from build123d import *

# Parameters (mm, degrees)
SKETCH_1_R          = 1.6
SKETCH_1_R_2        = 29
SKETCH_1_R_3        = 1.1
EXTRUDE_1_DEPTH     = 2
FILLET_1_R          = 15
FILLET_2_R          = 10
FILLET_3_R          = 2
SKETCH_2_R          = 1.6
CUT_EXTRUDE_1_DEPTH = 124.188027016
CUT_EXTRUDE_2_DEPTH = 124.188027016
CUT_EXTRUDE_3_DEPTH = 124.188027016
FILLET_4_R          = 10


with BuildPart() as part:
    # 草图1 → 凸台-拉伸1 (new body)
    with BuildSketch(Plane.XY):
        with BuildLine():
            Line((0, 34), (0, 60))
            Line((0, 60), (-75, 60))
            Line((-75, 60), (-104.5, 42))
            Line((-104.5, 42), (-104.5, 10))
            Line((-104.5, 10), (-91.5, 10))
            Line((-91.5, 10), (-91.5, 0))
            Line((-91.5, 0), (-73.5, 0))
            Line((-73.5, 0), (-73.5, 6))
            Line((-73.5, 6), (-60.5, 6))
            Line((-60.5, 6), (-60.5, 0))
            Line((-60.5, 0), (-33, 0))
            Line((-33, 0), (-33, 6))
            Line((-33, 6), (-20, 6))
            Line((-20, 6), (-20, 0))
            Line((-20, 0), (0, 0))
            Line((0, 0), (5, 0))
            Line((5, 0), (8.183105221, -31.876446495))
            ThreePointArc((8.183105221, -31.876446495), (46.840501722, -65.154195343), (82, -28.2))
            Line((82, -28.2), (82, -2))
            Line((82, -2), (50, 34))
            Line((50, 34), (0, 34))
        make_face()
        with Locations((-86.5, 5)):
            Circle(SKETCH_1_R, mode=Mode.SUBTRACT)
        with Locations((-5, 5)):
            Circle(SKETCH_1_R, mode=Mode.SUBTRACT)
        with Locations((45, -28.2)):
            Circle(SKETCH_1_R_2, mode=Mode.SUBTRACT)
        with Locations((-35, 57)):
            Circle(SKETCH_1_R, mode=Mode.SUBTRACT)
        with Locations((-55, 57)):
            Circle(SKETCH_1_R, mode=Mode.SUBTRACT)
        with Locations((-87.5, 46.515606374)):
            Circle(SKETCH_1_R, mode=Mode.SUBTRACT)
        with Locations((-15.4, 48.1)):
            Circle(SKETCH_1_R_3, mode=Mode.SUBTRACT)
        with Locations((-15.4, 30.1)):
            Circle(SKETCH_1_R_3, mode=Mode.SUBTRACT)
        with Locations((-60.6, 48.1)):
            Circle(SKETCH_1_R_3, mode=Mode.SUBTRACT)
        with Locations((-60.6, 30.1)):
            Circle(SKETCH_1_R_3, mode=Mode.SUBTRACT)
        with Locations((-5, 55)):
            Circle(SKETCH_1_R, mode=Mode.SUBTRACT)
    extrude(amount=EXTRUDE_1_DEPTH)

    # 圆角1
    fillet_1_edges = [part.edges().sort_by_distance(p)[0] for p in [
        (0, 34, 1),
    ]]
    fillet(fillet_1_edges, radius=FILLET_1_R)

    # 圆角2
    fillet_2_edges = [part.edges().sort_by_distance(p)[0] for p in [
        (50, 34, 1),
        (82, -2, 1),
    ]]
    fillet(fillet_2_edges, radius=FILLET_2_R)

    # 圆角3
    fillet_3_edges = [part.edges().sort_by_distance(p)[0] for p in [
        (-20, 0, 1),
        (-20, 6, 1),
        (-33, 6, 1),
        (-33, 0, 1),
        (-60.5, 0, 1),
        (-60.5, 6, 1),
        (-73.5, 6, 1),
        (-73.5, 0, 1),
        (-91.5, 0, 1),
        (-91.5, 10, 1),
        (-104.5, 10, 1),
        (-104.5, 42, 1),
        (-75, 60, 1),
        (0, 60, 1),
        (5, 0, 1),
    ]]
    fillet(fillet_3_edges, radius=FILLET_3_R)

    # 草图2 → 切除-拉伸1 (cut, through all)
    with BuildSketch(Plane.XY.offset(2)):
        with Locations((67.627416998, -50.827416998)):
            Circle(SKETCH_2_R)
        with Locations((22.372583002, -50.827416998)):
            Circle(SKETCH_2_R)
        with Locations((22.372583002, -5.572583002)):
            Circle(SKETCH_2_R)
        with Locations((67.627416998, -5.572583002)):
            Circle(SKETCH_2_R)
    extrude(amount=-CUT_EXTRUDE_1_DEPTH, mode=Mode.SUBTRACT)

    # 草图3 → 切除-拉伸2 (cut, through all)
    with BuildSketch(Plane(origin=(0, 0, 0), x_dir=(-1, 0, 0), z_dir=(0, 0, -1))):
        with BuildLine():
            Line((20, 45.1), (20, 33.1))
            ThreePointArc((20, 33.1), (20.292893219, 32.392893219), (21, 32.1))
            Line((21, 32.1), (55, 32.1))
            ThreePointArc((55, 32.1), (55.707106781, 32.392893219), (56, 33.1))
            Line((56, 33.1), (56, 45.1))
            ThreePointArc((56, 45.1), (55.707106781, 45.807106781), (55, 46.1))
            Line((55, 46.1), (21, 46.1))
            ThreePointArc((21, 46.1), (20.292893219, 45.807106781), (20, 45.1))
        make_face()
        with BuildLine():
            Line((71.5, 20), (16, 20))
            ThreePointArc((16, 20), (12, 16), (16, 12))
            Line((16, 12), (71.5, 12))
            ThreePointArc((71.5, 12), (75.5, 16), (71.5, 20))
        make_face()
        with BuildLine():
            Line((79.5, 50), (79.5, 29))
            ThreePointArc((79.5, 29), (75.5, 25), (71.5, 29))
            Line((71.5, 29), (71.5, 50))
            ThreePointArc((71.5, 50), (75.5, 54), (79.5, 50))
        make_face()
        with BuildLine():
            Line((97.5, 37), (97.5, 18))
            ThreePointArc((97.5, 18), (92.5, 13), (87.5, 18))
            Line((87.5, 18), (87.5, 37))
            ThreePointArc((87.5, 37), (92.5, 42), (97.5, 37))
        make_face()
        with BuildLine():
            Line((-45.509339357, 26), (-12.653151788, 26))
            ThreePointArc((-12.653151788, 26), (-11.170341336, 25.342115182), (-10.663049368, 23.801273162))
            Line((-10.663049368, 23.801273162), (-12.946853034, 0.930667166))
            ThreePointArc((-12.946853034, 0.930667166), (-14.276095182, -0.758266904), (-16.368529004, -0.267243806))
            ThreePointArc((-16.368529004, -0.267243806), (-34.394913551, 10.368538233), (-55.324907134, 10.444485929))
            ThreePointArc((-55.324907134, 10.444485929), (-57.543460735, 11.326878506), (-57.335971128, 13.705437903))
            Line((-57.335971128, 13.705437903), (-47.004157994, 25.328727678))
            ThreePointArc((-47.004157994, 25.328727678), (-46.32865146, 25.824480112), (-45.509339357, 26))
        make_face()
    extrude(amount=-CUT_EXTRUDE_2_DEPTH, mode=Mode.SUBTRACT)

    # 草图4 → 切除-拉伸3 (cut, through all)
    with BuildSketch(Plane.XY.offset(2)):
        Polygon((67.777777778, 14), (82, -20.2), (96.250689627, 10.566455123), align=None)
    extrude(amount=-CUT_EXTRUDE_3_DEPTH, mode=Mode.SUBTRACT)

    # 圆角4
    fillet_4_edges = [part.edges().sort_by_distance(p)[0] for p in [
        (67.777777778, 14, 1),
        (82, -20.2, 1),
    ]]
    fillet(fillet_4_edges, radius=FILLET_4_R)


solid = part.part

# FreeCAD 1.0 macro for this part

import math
import FreeCAD as App
import Part
import Sketcher
Q = App.Units.Quantity


def edges_at(feature, points):
    """Names of the edges that pass closest to the given points."""
    edges = feature.Shape.Edges
    near = lambda p: min(range(len(edges)), key=lambda i: edges[i].distToShape(Part.Vertex(*p))[0])
    return sorted({f"Edge{near(p) + 1}" for p in points})

doc = App.newDocument("Part")
body = doc.addObject("PartDesign::Body", "Body")

# Sketch on XY plane
sketch1 = doc.addObject("Sketcher::SketchObject", "Sketch")
body.addObject(sketch1)
sketch1.AttachmentSupport = (doc.XY_Plane, [""])
sketch1.MapMode = "FlatFace"
sketch1.addGeometry([
    Part.LineSegment(App.Vector(0, 34, 0), App.Vector(0, 60, 0)),  # 0
    Part.LineSegment(App.Vector(0, 60, 0), App.Vector(-75, 60, 0)),  # 1
    Part.LineSegment(App.Vector(-75, 60, 0), App.Vector(-104.5, 42, 0)),  # 2
    Part.LineSegment(App.Vector(-104.5, 42, 0), App.Vector(-104.5, 10, 0)),  # 3
    Part.LineSegment(App.Vector(-104.5, 10, 0), App.Vector(-91.5, 10, 0)),  # 4
    Part.LineSegment(App.Vector(-91.5, 10, 0), App.Vector(-91.5, 0, 0)),  # 5
    Part.LineSegment(App.Vector(-91.5, 0, 0), App.Vector(-73.5, 0, 0)),  # 6
    Part.LineSegment(App.Vector(-73.5, 0, 0), App.Vector(-73.5, 6, 0)),  # 7
    Part.LineSegment(App.Vector(-73.5, 6, 0), App.Vector(-60.5, 6, 0)),  # 8
    Part.LineSegment(App.Vector(-60.5, 6, 0), App.Vector(-60.5, 0, 0)),  # 9
    Part.LineSegment(App.Vector(-60.5, 0, 0), App.Vector(-33, 0, 0)),  # 10
    Part.LineSegment(App.Vector(-33, 0, 0), App.Vector(-33, 6, 0)),  # 11
    Part.LineSegment(App.Vector(-33, 6, 0), App.Vector(-20, 6, 0)),  # 12
    Part.LineSegment(App.Vector(-20, 6, 0), App.Vector(-20, 0, 0)),  # 13
    Part.LineSegment(App.Vector(-20, 0, 0), App.Vector(5, 0, 0)),  # 14
    Part.LineSegment(App.Vector(5, 0, 0), App.Vector(8.2, -31.9, 0)),  # 15
    Part.ArcOfCircle(Part.Circle(App.Vector(45, -28.2, 0), App.Vector(0, 0, 1), 37), math.radians(-174), math.radians(0)),  # 16
    Part.LineSegment(App.Vector(82, -28.2, 0), App.Vector(82, -2, 0)),  # 17
    Part.LineSegment(App.Vector(82, -2, 0), App.Vector(50, 34, 0)),  # 18
    Part.LineSegment(App.Vector(50, 34, 0), App.Vector(0, 34, 0)),  # 19
    Part.Circle(App.Vector(45, -28.2, 0), App.Vector(0, 0, 1), 29),  # 20
    Part.Circle(App.Vector(-86.5, 5, 0), App.Vector(0, 0, 1), 1.6),  # 21
    Part.Circle(App.Vector(-60.6, 30.1, 0), App.Vector(0, 0, 1), 1.1),  # 22
    Part.Circle(App.Vector(-87.5, 46.5, 0), App.Vector(0, 0, 1), 1.6),  # 23
    Part.Circle(App.Vector(-60.6, 48.1, 0), App.Vector(0, 0, 1), 1.1),  # 24
    Part.Circle(App.Vector(-55, 57, 0), App.Vector(0, 0, 1), 1.6),  # 25
    Part.Circle(App.Vector(-15.4, 30.1, 0), App.Vector(0, 0, 1), 1.1),  # 26
    Part.Circle(App.Vector(-35, 57, 0), App.Vector(0, 0, 1), 1.6),  # 27
    Part.Circle(App.Vector(-15.4, 48.1, 0), App.Vector(0, 0, 1), 1.1),  # 28
    Part.Circle(App.Vector(-5, 5, 0), App.Vector(0, 0, 1), 1.6),  # 29
    Part.Circle(App.Vector(-5, 55, 0), App.Vector(0, 0, 1), 1.6),  # 30
], False)
sketch1.addConstraint([
    Sketcher.Constraint("Coincident", 0, 2, 1, 1),
    Sketcher.Constraint("Coincident", 1, 2, 2, 1),
    Sketcher.Constraint("Coincident", 2, 2, 3, 1),
    Sketcher.Constraint("Coincident", 3, 2, 4, 1),
    Sketcher.Constraint("Coincident", 4, 2, 5, 1),
    Sketcher.Constraint("Coincident", 5, 2, 6, 1),
    Sketcher.Constraint("Coincident", 6, 2, 7, 1),
    Sketcher.Constraint("Coincident", 7, 2, 8, 1),
    Sketcher.Constraint("Coincident", 8, 2, 9, 1),
    Sketcher.Constraint("Coincident", 9, 2, 10, 1),
    Sketcher.Constraint("Coincident", 10, 2, 11, 1),
    Sketcher.Constraint("Coincident", 11, 2, 12, 1),
    Sketcher.Constraint("Coincident", 12, 2, 13, 1),
    Sketcher.Constraint("Coincident", 13, 2, 14, 1),
    Sketcher.Constraint("Coincident", 14, 2, 15, 1),
    Sketcher.Constraint("Tangent", 15, 2, 16, 1),
    Sketcher.Constraint("Tangent", 16, 2, 17, 1),
    Sketcher.Constraint("Coincident", 17, 2, 18, 1),
    Sketcher.Constraint("Coincident", 18, 2, 19, 1),
    Sketcher.Constraint("Coincident", 19, 2, 0, 1),
    Sketcher.Constraint("Vertical", 0),
    Sketcher.Constraint("Horizontal", 1),
    Sketcher.Constraint("Vertical", 3),
    Sketcher.Constraint("Horizontal", 4),
    Sketcher.Constraint("Vertical", 5),
    Sketcher.Constraint("Horizontal", 6),
    Sketcher.Constraint("Vertical", 7),
    Sketcher.Constraint("Horizontal", 8),
    Sketcher.Constraint("Vertical", 9),
    Sketcher.Constraint("Horizontal", 10),
    Sketcher.Constraint("Vertical", 11),
    Sketcher.Constraint("Horizontal", 12),
    Sketcher.Constraint("Vertical", 13),
    Sketcher.Constraint("Horizontal", 14),
    Sketcher.Constraint("Vertical", 17),
    Sketcher.Constraint("Horizontal", 19),
    Sketcher.Constraint("Coincident", 20, 3, 16, 3),
    Sketcher.Constraint("Equal", 21, 23),
    Sketcher.Constraint("Equal", 22, 24),
    Sketcher.Constraint("Equal", 23, 25),
    Sketcher.Constraint("Equal", 24, 26),
    Sketcher.Constraint("Equal", 25, 27),
    Sketcher.Constraint("Equal", 26, 28),
    Sketcher.Constraint("Equal", 27, 29),
    Sketcher.Constraint("Equal", 29, 30),
    Sketcher.Constraint("PointOnObject", 0, 2, -2),
    Sketcher.Constraint("PointOnObject", 5, 2, -1),
    Sketcher.Constraint("PointOnObject", 9, 2, -1),
    Sketcher.Constraint("PointOnObject", 13, 2, -1),
    Sketcher.Constraint("Horizontal", 22, 3, 26, 3),
    Sketcher.Constraint("Horizontal", 25, 3, 27, 3),
    Sketcher.Constraint("Horizontal", 24, 3, 28, 3),
    Sketcher.Constraint("Horizontal", 21, 3, 29, 3),
    Sketcher.Constraint("Horizontal", 8, 2, 11, 2),
    Sketcher.Constraint("Vertical", 22, 3, 24, 3),
    Sketcher.Constraint("Vertical", 26, 3, 28, 3),
    Sketcher.Constraint("Vertical", 29, 3, 30, 3),
    Sketcher.Constraint("Equal", 4, 8),
    Sketcher.Constraint("Equal", 8, 12),
    Sketcher.Constraint("Diameter", 20, Q("58 mm")),
    Sketcher.Constraint("Radius", 16, Q("37 mm")),
    Sketcher.Constraint("Diameter", 21, Q("3.2 mm")),
    Sketcher.Constraint("Diameter", 22, Q("2.2 mm")),
    Sketcher.Constraint("DistanceX", 1, 2, 1, 1, Q("75 mm")),
    Sketcher.Constraint("DistanceX", 4, 1, 4, 2, Q("13 mm")),
    Sketcher.Constraint("DistanceX", 6, 1, 6, 2, Q("18 mm")),
    Sketcher.Constraint("DistanceX", 14, 1, 14, 2, Q("25 mm")),
    Sketcher.Constraint("DistanceX", 19, 2, 19, 1, Q("50 mm")),
    Sketcher.Constraint("DistanceY", 0, 1, 0, 2, Q("26 mm")),
    Sketcher.Constraint("DistanceY", 3, 2, 3, 1, Q("32 mm")),
    Sketcher.Constraint("DistanceY", 5, 2, 5, 1, Q("10 mm")),
    Sketcher.Constraint("DistanceY", 7, 1, 7, 2, Q("6 mm")),
    Sketcher.Constraint("DistanceX", 10, 1, 10, 2, Q("27.5 mm")),
    Sketcher.Constraint("DistanceY", 17, 1, 17, 2, Q("26.2 mm")),
    Sketcher.Constraint("DistanceX", -1, 1, 16, 3, Q("45 mm")),
    Sketcher.Constraint("DistanceY", -1, 1, 21, 3, Q("5 mm")),
    Sketcher.Constraint("DistanceX", 25, 3, -1, 1, Q("55 mm")),
    Sketcher.Constraint("DistanceY", -1, 1, 25, 3, Q("57 mm")),
    Sketcher.Constraint("DistanceX", 27, 3, -1, 1, Q("35 mm")),
    Sketcher.Constraint("DistanceX", 29, 3, -1, 1, Q("5 mm")),
    Sketcher.Constraint("DistanceY", -1, 1, 30, 3, Q("55 mm")),
    Sketcher.Constraint("DistanceY", -1, 1, 0, 2, Q("60 mm")),
    Sketcher.Constraint("DistanceX", 10, 2, -1, 1, Q("33 mm")),
    Sketcher.Constraint("DistanceY", 17, 2, -1, 1, Q("2 mm")),
    Sketcher.Constraint("DistanceX", 23, 3, 21, 3, Q("1 mm")),
    Sketcher.Constraint("DistanceY", 22, 3, 24, 3, Q("18 mm")),
    Sketcher.Constraint("DistanceX", 2, 2, 23, 3, Q("17 mm")),
    Sketcher.Constraint("DistanceX", 22, 3, -1, 1, Q("60.6 mm")),
    Sketcher.Constraint("DistanceY", -1, 1, 22, 3, Q("30.1 mm")),
    Sketcher.Constraint("DistanceX", 26, 3, -1, 1, Q("15.4 mm")),
    Sketcher.Constraint("DistanceY", -1, 1, 23, 3, Q("46.515606 mm")),
])
pad1 = doc.addObject("PartDesign::Pad", "Pad")
body.addObject(pad1)
pad1.Profile = sketch1
pad1.Length = 2
doc.recompute()

fillet = doc.addObject("PartDesign::Fillet", "Fillet")
body.addObject(fillet)
fillet.Base = (pad1, edges_at(pad1, [(0, 34, 1)]))
fillet.Radius = 15
doc.recompute()

fillet2 = doc.addObject("PartDesign::Fillet", "Fillet001")
body.addObject(fillet2)
fillet2.Base = (fillet, edges_at(fillet, [(50, 34, 1), (82, -2, 1)]))
fillet2.Radius = 10
doc.recompute()

fillet3 = doc.addObject("PartDesign::Fillet", "Fillet002")
body.addObject(fillet3)
fillet3.Base = (fillet2, edges_at(fillet2, [
    (-20, 0, 1),
    (-20, 6, 1),
    (-33, 6, 1),
    (-33, 0, 1),
    (-60.5, 0, 1),
    (-60.5, 6, 1),
    (-73.5, 6, 1),
    (-73.5, 0, 1),
    (-91.5, 0, 1),
    (-91.5, 10, 1),
    (-104.5, 10, 1),
    (-104.5, 42, 1),
    (-75, 60, 1),
    (0, 60, 1),
    (5, 0, 1),
]))
fillet3.Radius = 2

# Sketch on XY plane
sketch2 = doc.addObject("Sketcher::SketchObject", "Sketch001")
body.addObject(sketch2)
sketch2.AttachmentSupport = (doc.XY_Plane, [""])
sketch2.MapMode = "FlatFace"
sketch2.AttachmentOffset = App.Placement(App.Vector(0, 0, 2), App.Rotation())
sketch2.addGeometry([
    Part.Circle(App.Vector(67.6, -50.8, 0), App.Vector(0, 0, 1), 1.6),
    Part.Circle(App.Vector(22.4, -50.8, 0), App.Vector(0, 0, 1), 1.6),
    Part.Circle(App.Vector(22.4, -5.6, 0), App.Vector(0, 0, 1), 1.6),
    Part.Circle(App.Vector(67.6, -5.6, 0), App.Vector(0, 0, 1), 1.6),
], False)
sketch2.addConstraint([
    Sketcher.Constraint("Equal", 0, 1),
    Sketcher.Constraint("Equal", 1, 2),
    Sketcher.Constraint("Equal", 2, 3),
    Sketcher.Constraint("Horizontal", 0, 3, 1, 3),
    Sketcher.Constraint("Horizontal", 2, 3, 3, 3),
    Sketcher.Constraint("Vertical", 1, 3, 2, 3),
    Sketcher.Constraint("Vertical", 0, 3, 3, 3),
    Sketcher.Constraint("Diameter", 0, Q("3.2 mm")),
    Sketcher.Constraint("DistanceX", -1, 1, 0, 3, Q("67.627417 mm")),
    Sketcher.Constraint("DistanceY", 0, 3, -1, 1, Q("50.827417 mm")),
    Sketcher.Constraint("DistanceX", -1, 1, 1, 3, Q("22.372583 mm")),
    Sketcher.Constraint("DistanceY", 2, 3, -1, 1, Q("5.572583 mm")),
])
pocket1 = doc.addObject("PartDesign::Pocket", "Pocket")
body.addObject(pocket1)
pocket1.Profile = sketch2
pocket1.Type = "ThroughAll"

# Sketch on XY plane
sketch3 = doc.addObject("Sketcher::SketchObject", "Sketch002")
body.addObject(sketch3)
sketch3.AttachmentSupport = (doc.XY_Plane, [""])
sketch3.MapMode = "FlatFace"
sketch3.addGeometry([
    Part.LineSegment(App.Vector(-20, 45.1, 0), App.Vector(-20, 33.1, 0)),  # 0
    Part.ArcOfCircle(Part.Circle(App.Vector(-21, 33.1, 0), App.Vector(0, 0, 1), 1), math.radians(-90), math.radians(0)),  # 1
    Part.LineSegment(App.Vector(-21, 32.1, 0), App.Vector(-55, 32.1, 0)),  # 2
    Part.ArcOfCircle(Part.Circle(App.Vector(-55, 33.1, 0), App.Vector(0, 0, 1), 1), math.radians(-180), math.radians(-90)),  # 3
    Part.LineSegment(App.Vector(-56, 33.1, 0), App.Vector(-56, 45.1, 0)),  # 4
    Part.ArcOfCircle(Part.Circle(App.Vector(-55, 45.1, 0), App.Vector(0, 0, 1), 1), math.radians(90), math.radians(180)),  # 5
    Part.LineSegment(App.Vector(-55, 46.1, 0), App.Vector(-21, 46.1, 0)),  # 6
    Part.ArcOfCircle(Part.Circle(App.Vector(-21, 45.1, 0), App.Vector(0, 0, 1), 1), math.radians(0), math.radians(90)),  # 7
    Part.LineSegment(App.Vector(-71.5, 20, 0), App.Vector(-16, 20, 0)),  # 8
    Part.ArcOfCircle(Part.Circle(App.Vector(-16, 16, 0), App.Vector(0, 0, 1), 4), math.radians(-90), math.radians(90)),  # 9
    Part.LineSegment(App.Vector(-16, 12, 0), App.Vector(-71.5, 12, 0)),  # 10
    Part.ArcOfCircle(Part.Circle(App.Vector(-71.5, 16, 0), App.Vector(0, 0, 1), 4), math.radians(90), math.radians(270)),  # 11
    Part.LineSegment(App.Vector(-79.5, 29, 0), App.Vector(-79.5, 50, 0)),  # 12
    Part.ArcOfCircle(Part.Circle(App.Vector(-75.5, 50, 0), App.Vector(0, 0, 1), 4), math.radians(0), math.radians(180)),  # 13
    Part.LineSegment(App.Vector(-71.5, 50, 0), App.Vector(-71.5, 29, 0)),  # 14
    Part.ArcOfCircle(Part.Circle(App.Vector(-75.5, 29, 0), App.Vector(0, 0, 1), 4), math.radians(180), math.radians(360)),  # 15
    Part.LineSegment(App.Vector(-97.5, 18, 0), App.Vector(-97.5, 37, 0)),  # 16
    Part.ArcOfCircle(Part.Circle(App.Vector(-92.5, 37, 0), App.Vector(0, 0, 1), 5), math.radians(0), math.radians(180)),  # 17
    Part.LineSegment(App.Vector(-87.5, 37, 0), App.Vector(-87.5, 18, 0)),  # 18
    Part.ArcOfCircle(Part.Circle(App.Vector(-92.5, 18, 0), App.Vector(0, 0, 1), 5), math.radians(180), math.radians(360)),  # 19
    Part.LineSegment(App.Vector(12.7, 26, 0), App.Vector(45.5, 26, 0)),  # 20
    Part.ArcOfCircle(Part.Circle(App.Vector(45.5, 24, 0), App.Vector(0, 0, 1), 2), math.radians(42), math.radians(90)),  # 21
    Part.LineSegment(App.Vector(47, 25.3, 0), App.Vector(57.3, 13.7, 0)),  # 22
    Part.ArcOfCircle(Part.Circle(App.Vector(55.8, 12.4, 0), App.Vector(0, 0, 1), 2), math.radians(-105), math.radians(42)),  # 23
    Part.ArcOfCircle(Part.Circle(App.Vector(45, -28.2, 0), App.Vector(0, 0, 1), 40), math.radians(75), math.radians(136)),  # 24
    Part.ArcOfCircle(Part.Circle(App.Vector(14.9, 1.1, 0), App.Vector(0, 0, 1), 2), math.radians(-174), math.radians(-44)),  # 25
    Part.LineSegment(App.Vector(12.9, 0.9, 0), App.Vector(10.7, 23.8, 0)),  # 26
    Part.ArcOfCircle(Part.Circle(App.Vector(12.7, 24, 0), App.Vector(0, 0, 1), 2), math.radians(90), math.radians(186)),  # 27
], False)
sketch3.addConstraint([
    Sketcher.Constraint("Tangent", 0, 2, 1, 2),
    Sketcher.Constraint("Tangent", 1, 1, 2, 1),
    Sketcher.Constraint("Tangent", 2, 2, 3, 2),
    Sketcher.Constraint("Tangent", 3, 1, 4, 1),
    Sketcher.Constraint("Tangent", 4, 2, 5, 2),
    Sketcher.Constraint("Tangent", 5, 1, 6, 1),
    Sketcher.Constraint("Tangent", 6, 2, 7, 2),
    Sketcher.Constraint("Tangent", 7, 1, 0, 1),
    Sketcher.Constraint("Tangent", 8, 2, 9, 2),
    Sketcher.Constraint("Tangent", 9, 1, 10, 1),
    Sketcher.Constraint("Tangent", 10, 2, 11, 2),
    Sketcher.Constraint("Tangent", 11, 1, 8, 1),
    Sketcher.Constraint("Tangent", 12, 2, 13, 2),
    Sketcher.Constraint("Tangent", 13, 1, 14, 1),
    Sketcher.Constraint("Tangent", 14, 2, 15, 2),
    Sketcher.Constraint("Tangent", 15, 1, 12, 1),
    Sketcher.Constraint("Tangent", 16, 2, 17, 2),
    Sketcher.Constraint("Tangent", 17, 1, 18, 1),
    Sketcher.Constraint("Tangent", 18, 2, 19, 2),
    Sketcher.Constraint("Tangent", 19, 1, 16, 1),
    Sketcher.Constraint("Tangent", 20, 2, 21, 2),
    Sketcher.Constraint("Tangent", 21, 1, 22, 1),
    Sketcher.Constraint("Tangent", 22, 2, 23, 2),
    Sketcher.Constraint("Tangent", 23, 1, 24, 1),
    Sketcher.Constraint("Tangent", 24, 2, 25, 2),
    Sketcher.Constraint("Tangent", 25, 1, 26, 1),
    Sketcher.Constraint("Tangent", 26, 2, 27, 2),
    Sketcher.Constraint("Tangent", 27, 1, 20, 1),
    Sketcher.Constraint("Vertical", 0),
    Sketcher.Constraint("Horizontal", 2),
    Sketcher.Constraint("Vertical", 4),
    Sketcher.Constraint("Horizontal", 6),
    Sketcher.Constraint("Horizontal", 8),
    Sketcher.Constraint("Horizontal", 10),
    Sketcher.Constraint("Vertical", 12),
    Sketcher.Constraint("Vertical", 14),
    Sketcher.Constraint("Vertical", 16),
    Sketcher.Constraint("Vertical", 18),
    Sketcher.Constraint("Horizontal", 20),
    Sketcher.Constraint("Equal", 1, 3),
    Sketcher.Constraint("Equal", 3, 5),
    Sketcher.Constraint("Equal", 5, 7),
    Sketcher.Constraint("Equal", 11, 13),
    Sketcher.Constraint("Equal", 21, 23),
    Sketcher.Constraint("Equal", 23, 25),
    Sketcher.Constraint("Equal", 25, 27),
    Sketcher.Constraint("Vertical", 11, 1, 13, 1),
    Sketcher.Constraint("Radius", 1, Q("1 mm")),
    Sketcher.Constraint("Radius", 9, Q("4 mm")),
    Sketcher.Constraint("Radius", 17, Q("5 mm")),
    Sketcher.Constraint("Radius", 21, Q("2 mm")),
    Sketcher.Constraint("Radius", 24, Q("40 mm")),
    Sketcher.Constraint("DistanceX", 2, 2, 2, 1, Q("34 mm")),
    Sketcher.Constraint("DistanceY", 0, 2, 0, 1, Q("12 mm")),
    Sketcher.Constraint("DistanceY", 12, 1, 12, 2, Q("21 mm")),
    Sketcher.Constraint("DistanceY", 16, 1, 16, 2, Q("19 mm")),
    Sketcher.Constraint("DistanceX", 8, 1, 8, 2, Q("55.5 mm")),
    Sketcher.Constraint("DistanceX", 1, 3, -1, 1, Q("21 mm")),
    Sketcher.Constraint("DistanceX", 9, 3, -1, 1, Q("16 mm")),
    Sketcher.Constraint("DistanceY", -1, 1, 9, 3, Q("16 mm")),
    Sketcher.Constraint("DistanceY", -1, 1, 13, 3, Q("50 mm")),
    Sketcher.Constraint("DistanceY", -1, 1, 17, 3, Q("37 mm")),
    Sketcher.Constraint("DistanceY", -1, 1, 21, 3, Q("24 mm")),
    Sketcher.Constraint("DistanceX", -1, 1, 24, 3, Q("45 mm")),
    Sketcher.Constraint("DistanceX", 17, 3, 15, 3, Q("17 mm")),
    Sketcher.Constraint("DistanceY", -1, 1, 1, 3, Q("33.1 mm")),
    Sketcher.Constraint("DistanceY", 24, 3, -1, 1, Q("28.2 mm")),
    Sketcher.Constraint("DistanceX", 27, 3, 25, 1, Q("0.293701 mm")),
    Sketcher.Constraint("Distance", 22, Q("15.551438 mm")),
    Sketcher.Constraint("Distance", 26, Q("22.984351 mm")),
    Sketcher.Constraint("DistanceX", 20, 1, 20, 2, Q("32.856188 mm")),
])
pocket2 = doc.addObject("PartDesign::Pocket", "Pocket001")
body.addObject(pocket2)
pocket2.Profile = sketch3
pocket2.Type = "ThroughAll"
pocket2.Reversed = True

# Sketch on XY plane
sketch4 = doc.addObject("Sketcher::SketchObject", "Sketch003")
body.addObject(sketch4)
sketch4.AttachmentSupport = (doc.XY_Plane, [""])
sketch4.MapMode = "FlatFace"
sketch4.AttachmentOffset = App.Placement(App.Vector(0, 0, 2), App.Rotation())
sketch4.addGeometry([
    Part.LineSegment(App.Vector(68, 14, 0), App.Vector(82, -20, 0)),
    Part.LineSegment(App.Vector(82, -20, 0), App.Vector(96, 11, 0)),
    Part.LineSegment(App.Vector(96, 11, 0), App.Vector(68, 14, 0)),
], False)
sketch4.addConstraint([
    Sketcher.Constraint("Coincident", 0, 2, 1, 1),
    Sketcher.Constraint("Coincident", 1, 2, 2, 1),
    Sketcher.Constraint("Coincident", 2, 2, 0, 1),
    Sketcher.Constraint("DistanceX", -1, 1, 0, 2, Q("82 mm")),
    Sketcher.Constraint("DistanceY", -1, 1, 2, 2, Q("14 mm")),
    Sketcher.Constraint("DistanceY", 0, 2, -1, 1, Q("20.2 mm")),
    Sketcher.Constraint("Distance", 1, Q("33.906591 mm")),
    Sketcher.Constraint("Distance", 2, Q("28.67919 mm")),
    Sketcher.Constraint("DistanceX", -1, 1, 1, 2, Q("96.25069 mm")),
])
pocket3 = doc.addObject("PartDesign::Pocket", "Pocket002")
body.addObject(pocket3)
pocket3.Profile = sketch4
pocket3.Type = "ThroughAll"
doc.recompute()

fillet4 = doc.addObject("PartDesign::Fillet", "Fillet003")
body.addObject(fillet4)
fillet4.Base = (pocket3, edges_at(pocket3, [(67.778, 14, 1), (82, -20.2, 1)]))
fillet4.Radius = 10

doc.recompute()
